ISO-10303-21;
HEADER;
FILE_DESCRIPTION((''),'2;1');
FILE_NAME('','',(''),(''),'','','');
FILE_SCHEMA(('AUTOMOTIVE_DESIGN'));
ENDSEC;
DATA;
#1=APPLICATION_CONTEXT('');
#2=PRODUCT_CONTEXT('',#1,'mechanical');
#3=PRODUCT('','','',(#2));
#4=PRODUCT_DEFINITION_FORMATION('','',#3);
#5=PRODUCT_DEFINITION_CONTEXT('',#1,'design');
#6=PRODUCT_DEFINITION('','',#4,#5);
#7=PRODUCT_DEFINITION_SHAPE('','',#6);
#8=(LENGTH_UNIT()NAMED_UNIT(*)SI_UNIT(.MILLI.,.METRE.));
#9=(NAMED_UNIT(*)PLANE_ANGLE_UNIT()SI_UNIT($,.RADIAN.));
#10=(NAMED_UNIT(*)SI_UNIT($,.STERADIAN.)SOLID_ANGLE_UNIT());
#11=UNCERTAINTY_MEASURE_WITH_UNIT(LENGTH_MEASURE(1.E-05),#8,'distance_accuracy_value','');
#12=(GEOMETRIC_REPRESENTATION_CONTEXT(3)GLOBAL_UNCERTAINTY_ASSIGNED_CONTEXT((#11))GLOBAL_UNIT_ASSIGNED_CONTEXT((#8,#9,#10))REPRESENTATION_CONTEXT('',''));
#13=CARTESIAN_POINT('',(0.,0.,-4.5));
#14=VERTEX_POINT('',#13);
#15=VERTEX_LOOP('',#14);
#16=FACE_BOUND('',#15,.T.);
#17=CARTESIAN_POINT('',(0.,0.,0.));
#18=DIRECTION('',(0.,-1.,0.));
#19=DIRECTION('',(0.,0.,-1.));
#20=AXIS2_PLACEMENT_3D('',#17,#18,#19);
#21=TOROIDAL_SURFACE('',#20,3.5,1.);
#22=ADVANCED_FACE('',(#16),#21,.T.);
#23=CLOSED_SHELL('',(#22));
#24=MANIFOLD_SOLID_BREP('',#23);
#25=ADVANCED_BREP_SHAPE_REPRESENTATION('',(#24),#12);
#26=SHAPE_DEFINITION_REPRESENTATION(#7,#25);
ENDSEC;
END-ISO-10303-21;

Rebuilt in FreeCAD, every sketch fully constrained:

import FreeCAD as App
import Part
import Sketcher

V = App.Vector
Q = App.Units.Quantity

doc = App.newDocument("Part")
params = doc.addObject("Spreadsheet::Sheet", "Params")
for row, (alias, value) in enumerate([
    ("sketch1_diameter", "2 mm"),
    ("revolution_angle", "360 deg"),
], start=1):
    params.set(f"A{row}", alias)
    params.set(f"B{row}", "=" + value)
    params.setAlias(f"B{row}", alias)

body = doc.addObject("PartDesign::Body", "Body")

# Sketch on XY plane
sketch1 = body.newObject("Sketcher::SketchObject", "Sketch")
sketch1.AttachmentSupport = (doc.getObject("XY_Plane"), [""])
sketch1.MapMode = "FlatFace"
sketch1.addGeometry(Part.Circle(V(3.5, 0, 0), V(0, 0, 1), 1), False)
sketch1.addConstraint([
    Sketcher.Constraint("PointOnObject", 0, 3, -1),
    Sketcher.Constraint("Diameter", 0, Q("2 mm")),
    Sketcher.Constraint("DistanceX", -1, 1, 0, 3, Q("3.5 mm")),
])
sketch1.setExpression("Constraints[1]", "Params.sketch1_diameter")
revolution = body.newObject("PartDesign::Revolution", "Revolution")
revolution.Profile = sketch1
revolution.ReferenceAxis = (sketch1, ["V_Axis"])
revolution.setExpression("Angle", "Params.revolution_angle")

doc.recompute()
